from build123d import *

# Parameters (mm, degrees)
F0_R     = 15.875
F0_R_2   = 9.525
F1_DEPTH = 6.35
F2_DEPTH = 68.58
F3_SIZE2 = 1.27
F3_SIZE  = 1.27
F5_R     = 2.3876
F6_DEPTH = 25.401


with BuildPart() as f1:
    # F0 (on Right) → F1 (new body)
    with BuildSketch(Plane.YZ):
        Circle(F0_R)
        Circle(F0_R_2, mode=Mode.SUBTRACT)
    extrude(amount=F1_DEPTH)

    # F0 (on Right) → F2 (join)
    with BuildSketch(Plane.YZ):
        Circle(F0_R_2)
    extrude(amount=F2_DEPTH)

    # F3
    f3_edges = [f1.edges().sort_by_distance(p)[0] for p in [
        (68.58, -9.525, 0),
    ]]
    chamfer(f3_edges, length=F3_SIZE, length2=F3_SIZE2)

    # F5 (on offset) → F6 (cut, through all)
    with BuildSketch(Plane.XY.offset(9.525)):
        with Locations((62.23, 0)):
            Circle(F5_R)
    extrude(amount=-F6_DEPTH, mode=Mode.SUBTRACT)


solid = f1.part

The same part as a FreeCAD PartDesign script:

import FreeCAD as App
import Part
import Sketcher
Q = App.Units.Quantity


def edges_at(feature, points):
    """Names of the edges that pass closest to the given points."""
    edges = feature.Shape.Edges
    near = lambda p: min(range(len(edges)), key=lambda i: edges[i].distToShape(Part.Vertex(*p))[0])
    return sorted({f"Edge{near(p) + 1}" for p in points})

doc = App.newDocument("Part")
body = doc.addObject("PartDesign::Body", "Body")

# Sketch on YZ plane
sketch1 = body.newObject("Sketcher::SketchObject", "Sketch")
sketch1.AttachmentSupport = (doc.getObject("YZ_Plane"), [""])
sketch1.MapMode = "FlatFace"
sketch1.addGeometry([
    Part.Circle(App.Vector(0, 0, 0), App.Vector(0, 0, 1), 16),
    Part.Circle(App.Vector(0, 0, 0), App.Vector(0, 0, 1), 10),
], False)
sketch1.addConstraint([
    Sketcher.Constraint("Coincident", 0, 3, -1, 1),
    Sketcher.Constraint("Coincident", 1, 3, -1, 1),
    Sketcher.Constraint("Diameter", 0, Q("1.25 in")),
    Sketcher.Constraint("Diameter", 1, Q("0.75 in")),
])
pad1 = body.newObject("PartDesign::Pad", "Pad")
pad1.Profile = sketch1
pad1.Length = Q("0.25 in")

# Sketch on YZ plane
sketch2 = body.newObject("Sketcher::SketchObject", "Sketch001")
sketch2.AttachmentSupport = (doc.getObject("YZ_Plane"), [""])
sketch2.MapMode = "FlatFace"
sketch2.addGeometry(Part.Circle(App.Vector(0, 0, 0), App.Vector(0, 0, 1), 10), False)
sketch2.addConstraint([
    Sketcher.Constraint("Coincident", 0, 3, -1, 1),
    Sketcher.Constraint("Diameter", 0, Q("0.75 in")),
])
pad2 = body.newObject("PartDesign::Pad", "Pad001")
pad2.Profile = sketch2
pad2.Length = Q("2.7 in")
doc.recompute()

chamfer = body.newObject("PartDesign::Chamfer", "Chamfer")
chamfer.Base = (pad2, edges_at(pad2, [(68.58, -9.525, 0)]))
chamfer.ChamferType = "Two distances"
chamfer.Size = Q("0.05 in")
chamfer.Size2 = Q("0.05 in")

# Sketch on XY plane
sketch3 = body.newObject("Sketcher::SketchObject", "Sketch002")
sketch3.AttachmentSupport = (doc.getObject("XY_Plane"), [""])
sketch3.MapMode = "FlatFace"
sketch3.AttachmentOffset = App.Placement(App.Vector(0, 0, 0.375 * 25.4), App.Rotation())
sketch3.addGeometry(Part.Circle(App.Vector(62.2, 0, 0), App.Vector(0, 0, 1), 2.4), False)
sketch3.addConstraint([
    Sketcher.Constraint("PointOnObject", 0, 3, -1),
    Sketcher.Constraint("Diameter", 0, Q("0.188 in")),
    Sketcher.Constraint("DistanceX", -1, 1, 0, 3, Q("2.45 in")),
])
pocket1 = body.newObject("PartDesign::Pocket", "Pocket")
pocket1.Profile = sketch3
pocket1.Type = "ThroughAll"

doc.recompute()
